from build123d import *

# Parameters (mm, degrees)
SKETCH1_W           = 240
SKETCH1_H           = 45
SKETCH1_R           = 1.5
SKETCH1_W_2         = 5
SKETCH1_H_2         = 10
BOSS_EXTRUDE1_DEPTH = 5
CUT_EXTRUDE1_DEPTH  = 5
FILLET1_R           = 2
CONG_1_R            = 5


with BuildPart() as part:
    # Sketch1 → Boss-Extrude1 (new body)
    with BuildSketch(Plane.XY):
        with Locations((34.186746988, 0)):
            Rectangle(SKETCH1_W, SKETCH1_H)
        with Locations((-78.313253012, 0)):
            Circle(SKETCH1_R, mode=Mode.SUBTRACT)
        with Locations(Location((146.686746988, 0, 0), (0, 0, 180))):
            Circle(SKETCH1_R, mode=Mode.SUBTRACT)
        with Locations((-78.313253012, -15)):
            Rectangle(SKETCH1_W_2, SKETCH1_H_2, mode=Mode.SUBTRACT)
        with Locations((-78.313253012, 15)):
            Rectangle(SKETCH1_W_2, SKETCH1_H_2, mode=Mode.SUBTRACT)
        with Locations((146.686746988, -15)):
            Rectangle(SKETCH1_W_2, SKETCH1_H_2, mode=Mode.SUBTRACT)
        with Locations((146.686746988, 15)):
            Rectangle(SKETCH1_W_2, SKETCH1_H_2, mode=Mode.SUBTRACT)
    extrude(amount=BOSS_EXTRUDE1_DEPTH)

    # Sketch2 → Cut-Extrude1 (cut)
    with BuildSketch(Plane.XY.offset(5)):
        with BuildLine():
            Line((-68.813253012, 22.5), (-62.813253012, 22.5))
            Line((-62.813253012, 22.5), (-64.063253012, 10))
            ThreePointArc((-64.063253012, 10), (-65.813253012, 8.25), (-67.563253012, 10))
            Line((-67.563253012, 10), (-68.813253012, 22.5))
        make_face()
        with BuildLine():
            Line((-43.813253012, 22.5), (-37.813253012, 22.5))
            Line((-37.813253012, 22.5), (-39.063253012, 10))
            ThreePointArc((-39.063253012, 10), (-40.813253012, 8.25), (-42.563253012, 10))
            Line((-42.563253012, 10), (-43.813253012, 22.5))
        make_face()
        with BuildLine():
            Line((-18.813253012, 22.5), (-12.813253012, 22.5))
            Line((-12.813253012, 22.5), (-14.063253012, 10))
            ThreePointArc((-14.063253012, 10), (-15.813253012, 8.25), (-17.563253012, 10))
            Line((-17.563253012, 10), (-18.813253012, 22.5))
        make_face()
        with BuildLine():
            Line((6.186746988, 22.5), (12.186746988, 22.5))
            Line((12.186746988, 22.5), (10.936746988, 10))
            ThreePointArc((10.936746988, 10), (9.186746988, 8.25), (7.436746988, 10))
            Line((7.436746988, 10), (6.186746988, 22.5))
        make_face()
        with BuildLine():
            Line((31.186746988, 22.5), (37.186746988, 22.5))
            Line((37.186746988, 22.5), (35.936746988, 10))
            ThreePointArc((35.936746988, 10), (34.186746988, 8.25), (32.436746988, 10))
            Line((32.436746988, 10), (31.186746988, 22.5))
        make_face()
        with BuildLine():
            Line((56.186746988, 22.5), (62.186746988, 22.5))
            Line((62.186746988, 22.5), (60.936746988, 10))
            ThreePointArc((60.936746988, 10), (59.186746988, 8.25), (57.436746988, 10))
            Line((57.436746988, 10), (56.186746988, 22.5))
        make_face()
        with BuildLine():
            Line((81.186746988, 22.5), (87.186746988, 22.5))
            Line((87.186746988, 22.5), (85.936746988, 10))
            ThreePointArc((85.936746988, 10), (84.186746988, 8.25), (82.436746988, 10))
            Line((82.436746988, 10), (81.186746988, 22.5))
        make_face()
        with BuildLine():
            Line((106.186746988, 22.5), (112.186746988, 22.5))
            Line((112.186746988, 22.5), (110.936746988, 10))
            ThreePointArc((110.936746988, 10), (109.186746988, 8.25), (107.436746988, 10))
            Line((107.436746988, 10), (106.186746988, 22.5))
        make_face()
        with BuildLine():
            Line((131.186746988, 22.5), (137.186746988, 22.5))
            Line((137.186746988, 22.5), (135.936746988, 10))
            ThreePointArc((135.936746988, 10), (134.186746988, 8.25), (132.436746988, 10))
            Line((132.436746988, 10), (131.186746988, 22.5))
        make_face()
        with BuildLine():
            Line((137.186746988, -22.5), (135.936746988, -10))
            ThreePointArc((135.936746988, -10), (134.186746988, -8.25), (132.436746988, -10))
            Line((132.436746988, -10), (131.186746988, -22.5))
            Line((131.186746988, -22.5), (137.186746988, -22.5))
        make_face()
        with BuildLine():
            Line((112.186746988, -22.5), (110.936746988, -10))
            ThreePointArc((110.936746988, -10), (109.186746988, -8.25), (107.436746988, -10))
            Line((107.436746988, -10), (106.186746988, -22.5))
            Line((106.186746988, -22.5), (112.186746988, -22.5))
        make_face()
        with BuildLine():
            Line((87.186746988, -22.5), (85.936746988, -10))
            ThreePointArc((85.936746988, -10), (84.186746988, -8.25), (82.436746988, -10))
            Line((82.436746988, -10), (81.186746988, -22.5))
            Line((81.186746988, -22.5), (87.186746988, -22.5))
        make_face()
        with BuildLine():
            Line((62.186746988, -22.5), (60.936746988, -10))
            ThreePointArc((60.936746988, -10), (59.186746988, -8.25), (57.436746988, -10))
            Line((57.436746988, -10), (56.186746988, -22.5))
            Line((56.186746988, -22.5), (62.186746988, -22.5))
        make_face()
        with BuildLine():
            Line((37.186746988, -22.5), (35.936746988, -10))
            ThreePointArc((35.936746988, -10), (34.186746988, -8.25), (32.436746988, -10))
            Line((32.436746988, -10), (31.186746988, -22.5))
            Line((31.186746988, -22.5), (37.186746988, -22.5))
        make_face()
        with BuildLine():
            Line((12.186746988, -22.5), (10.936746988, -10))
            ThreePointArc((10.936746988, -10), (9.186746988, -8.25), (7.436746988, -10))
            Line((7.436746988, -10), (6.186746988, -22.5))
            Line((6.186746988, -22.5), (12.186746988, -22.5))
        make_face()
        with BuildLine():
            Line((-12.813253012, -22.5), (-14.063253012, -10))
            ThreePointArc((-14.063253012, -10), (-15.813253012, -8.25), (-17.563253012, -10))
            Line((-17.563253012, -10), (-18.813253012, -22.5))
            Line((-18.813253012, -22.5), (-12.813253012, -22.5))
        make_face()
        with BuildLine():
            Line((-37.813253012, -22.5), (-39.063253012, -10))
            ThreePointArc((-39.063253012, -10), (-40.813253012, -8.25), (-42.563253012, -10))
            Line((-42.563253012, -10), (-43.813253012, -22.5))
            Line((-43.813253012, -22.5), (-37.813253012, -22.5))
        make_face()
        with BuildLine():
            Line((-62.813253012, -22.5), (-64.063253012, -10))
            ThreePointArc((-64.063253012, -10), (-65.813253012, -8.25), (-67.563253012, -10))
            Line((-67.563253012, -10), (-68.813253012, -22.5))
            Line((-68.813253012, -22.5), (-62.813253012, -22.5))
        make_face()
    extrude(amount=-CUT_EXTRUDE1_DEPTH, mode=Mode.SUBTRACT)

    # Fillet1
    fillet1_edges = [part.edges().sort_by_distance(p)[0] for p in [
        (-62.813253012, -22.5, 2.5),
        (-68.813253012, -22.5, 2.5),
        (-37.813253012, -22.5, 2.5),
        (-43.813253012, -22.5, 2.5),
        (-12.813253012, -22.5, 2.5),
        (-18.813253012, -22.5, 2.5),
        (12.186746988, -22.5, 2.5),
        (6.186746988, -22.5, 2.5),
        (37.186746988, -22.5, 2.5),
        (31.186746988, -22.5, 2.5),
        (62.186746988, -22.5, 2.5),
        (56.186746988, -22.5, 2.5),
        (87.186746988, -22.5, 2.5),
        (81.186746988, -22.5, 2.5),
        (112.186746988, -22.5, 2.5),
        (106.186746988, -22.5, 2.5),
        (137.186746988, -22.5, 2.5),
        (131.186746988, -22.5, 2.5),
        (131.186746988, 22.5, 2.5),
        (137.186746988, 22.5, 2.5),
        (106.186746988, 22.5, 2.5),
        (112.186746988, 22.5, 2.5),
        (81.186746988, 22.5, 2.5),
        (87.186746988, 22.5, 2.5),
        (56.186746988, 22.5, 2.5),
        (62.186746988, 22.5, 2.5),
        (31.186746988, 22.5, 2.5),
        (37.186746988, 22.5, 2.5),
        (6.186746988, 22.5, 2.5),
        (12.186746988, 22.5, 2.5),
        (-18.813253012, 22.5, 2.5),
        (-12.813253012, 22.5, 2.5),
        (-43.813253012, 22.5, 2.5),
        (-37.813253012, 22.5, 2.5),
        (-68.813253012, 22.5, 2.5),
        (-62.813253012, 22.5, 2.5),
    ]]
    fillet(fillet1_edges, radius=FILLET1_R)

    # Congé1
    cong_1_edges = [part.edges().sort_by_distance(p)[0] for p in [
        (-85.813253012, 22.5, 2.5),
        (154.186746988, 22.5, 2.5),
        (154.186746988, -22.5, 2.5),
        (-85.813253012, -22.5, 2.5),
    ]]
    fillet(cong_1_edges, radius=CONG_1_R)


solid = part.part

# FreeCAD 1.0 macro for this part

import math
import FreeCAD as App
import Part
import Sketcher


def edges_at(feature, points):
    """Names of the edges that pass closest to the given points."""
    edges = feature.Shape.Edges
    near = lambda p: min(range(len(edges)), key=lambda i: edges[i].distToShape(Part.Vertex(*p))[0])
    return sorted({f"Edge{near(p) + 1}" for p in points})


def add_polygon(sketch, points):
    """Adds a closed chain of lines whose ends are joined by coincident constraints."""
    first, n = sketch.GeometryCount, len(points)
    for a, b in zip(points, points[1:] + points[:1]):
        sketch.addGeometry(Part.LineSegment(App.Vector(*a, 0), App.Vector(*b, 0)), False)
    for i in range(n):
        sketch.addConstraint(Sketcher.Constraint("Coincident", first + i, 2, first + (i + 1) % n, 1))

doc = App.newDocument("Part")
body = doc.addObject("PartDesign::Body", "Body")

# Sketch on XY plane
sketch1 = body.newObject("Sketcher::SketchObject", "Sketch")
sketch1.AttachmentSupport = (doc.getObject("XY_Plane"), [""])
sketch1.MapMode = "FlatFace"
add_polygon(sketch1, [(-85.8, 22.5), (-85.8, -22.5), (154.2, -22.5), (154.2, 22.5)])  # lines 0-3
add_polygon(sketch1, [(-75.8, -20), (-80.8, -20), (-80.8, -10), (-75.8, -10)])  # lines 4-7
add_polygon(sketch1, [(149.2, -20), (144.2, -20), (144.2, -10), (149.2, -10)])  # lines 8-11
sketch1.addGeometry(Part.Circle(App.Vector(-78.3, 0, 0), App.Vector(0, 0, 1), 1.5), False)  # 12
add_polygon(sketch1, [(-75.8, 10), (-80.8, 10), (-80.8, 20), (-75.8, 20)])  # lines 13-16
sketch1.addGeometry(Part.Circle(App.Vector(146.7, 0, 0), App.Vector(0, 0, 1), 1.5), False)  # 17
add_polygon(sketch1, [(149.2, 10), (144.2, 10), (144.2, 20), (149.2, 20)])  # lines 18-21
sketch1.addConstraint(Sketcher.Constraint("Vertical", 0))
sketch1.addConstraint(Sketcher.Constraint("Horizontal", 1))
sketch1.addConstraint(Sketcher.Constraint("Vertical", 2))
sketch1.addConstraint(Sketcher.Constraint("Horizontal", 3))
sketch1.addConstraint(Sketcher.Constraint("Horizontal", 4))
sketch1.addConstraint(Sketcher.Constraint("Vertical", 5))
sketch1.addConstraint(Sketcher.Constraint("Horizontal", 6))
sketch1.addConstraint(Sketcher.Constraint("Vertical", 7))
sketch1.addConstraint(Sketcher.Constraint("Horizontal", 8))
sketch1.addConstraint(Sketcher.Constraint("Vertical", 9))
sketch1.addConstraint(Sketcher.Constraint("Horizontal", 10))
sketch1.addConstraint(Sketcher.Constraint("Vertical", 11))
sketch1.addConstraint(Sketcher.Constraint("Horizontal", 13))
sketch1.addConstraint(Sketcher.Constraint("Vertical", 14))
sketch1.addConstraint(Sketcher.Constraint("Horizontal", 15))
sketch1.addConstraint(Sketcher.Constraint("Vertical", 16))
sketch1.addConstraint(Sketcher.Constraint("Horizontal", 18))
sketch1.addConstraint(Sketcher.Constraint("Vertical", 19))
sketch1.addConstraint(Sketcher.Constraint("Horizontal", 20))
sketch1.addConstraint(Sketcher.Constraint("Vertical", 21))
sketch1.addConstraint(Sketcher.Constraint("Equal", 12, 17))
sketch1.addConstraint(Sketcher.Constraint("Symmetric", 5, 2, 13, 2, -1))
sketch1.addConstraint(Sketcher.Constraint("Symmetric", 7, 2, 15, 2, -1))
sketch1.addConstraint(Sketcher.Constraint("Symmetric", 9, 2, 18, 2, -1))
sketch1.addConstraint(Sketcher.Constraint("Symmetric", 11, 2, 20, 2, -1))
sketch1.addConstraint(Sketcher.Constraint("PointOnObject", 12, 3, -1))
sketch1.addConstraint(Sketcher.Constraint("PointOnObject", 17, 3, -1))
sketch1.addConstraint(Sketcher.Constraint("Horizontal", 7, 2, 8, 2))
sketch1.addConstraint(Sketcher.Constraint("Horizontal", 6, 2, 9, 2))
sketch1.addConstraint(Sketcher.Constraint("Equal", 6, 8))
sketch1.addConstraint(Sketcher.Constraint("Diameter", 12, 3.0))
sketch1.addConstraint(Sketcher.Constraint("DistanceX", 1, 1, 1, 2, 240.0))
sketch1.addConstraint(Sketcher.Constraint("DistanceX", 4, 2, 4, 1, 5.0))
sketch1.addConstraint(Sketcher.Constraint("DistanceY", 0, 2, 0, 1, 45.0))
sketch1.addConstraint(Sketcher.Constraint("DistanceY", 5, 1, 5, 2, 10.0))
sketch1.addConstraint(Sketcher.Constraint("DistanceY", 4, 2, -1, 1, 20.0))
sketch1.addConstraint(Sketcher.Constraint("DistanceX", 12, 3, 17, 3, 225.0))
sketch1.addConstraint(Sketcher.Constraint("DistanceX", 0, 2, 4, 2, 5.0))
sketch1.addConstraint(Sketcher.Constraint("DistanceX", 8, 2, 1, 2, 10.0))
sketch1.addConstraint(Sketcher.Constraint("DistanceY", 0, 2, -1, 1, 22.5))
sketch1.addConstraint(Sketcher.Constraint("DistanceX", 0, 2, 12, 3, 7.5))
sketch1.addConstraint(Sketcher.Constraint("DistanceX", 12, 3, -1, 1, 78.313253))
pad1 = body.newObject("PartDesign::Pad", "Pad")
pad1.Profile = sketch1
pad1.Length = 5

# Sketch on XY plane
sketch2 = body.newObject("Sketcher::SketchObject", "Sketch001")
sketch2.AttachmentSupport = (doc.getObject("XY_Plane"), [""])
sketch2.MapMode = "FlatFace"
sketch2.AttachmentOffset = App.Placement(App.Vector(0, 0, 5), App.Rotation())
sketch2.addGeometry(Part.LineSegment(App.Vector(-62.8, 22.5, 0), App.Vector(-68.8, 22.5, 0)), False)
sketch2.addGeometry(Part.LineSegment(App.Vector(-68.8, 22.5, 0), App.Vector(-67.6, 10, 0)), False)
sketch2.addGeometry(Part.ArcOfCircle(Part.Circle(App.Vector(-65.8, 10, 0), App.Vector(0, 0, 1), 1.8), math.radians(180), math.radians(360)), False)
sketch2.addGeometry(Part.LineSegment(App.Vector(-64.1, 10, 0), App.Vector(-62.8, 22.5, 0)), False)
sketch2.addGeometry(Part.LineSegment(App.Vector(-37.8, 22.5, 0), App.Vector(-43.8, 22.5, 0)), False)
sketch2.addGeometry(Part.LineSegment(App.Vector(-43.8, 22.5, 0), App.Vector(-42.6, 10, 0)), False)
sketch2.addGeometry(Part.ArcOfCircle(Part.Circle(App.Vector(-40.8, 10, 0), App.Vector(0, 0, 1), 1.8), math.radians(180), math.radians(360)), False)
sketch2.addGeometry(Part.LineSegment(App.Vector(-39.1, 10, 0), App.Vector(-37.8, 22.5, 0)), False)
sketch2.addGeometry(Part.LineSegment(App.Vector(-12.8, 22.5, 0), App.Vector(-18.8, 22.5, 0)), False)
sketch2.addGeometry(Part.LineSegment(App.Vector(-18.8, 22.5, 0), App.Vector(-17.6, 10, 0)), False)
sketch2.addGeometry(Part.ArcOfCircle(Part.Circle(App.Vector(-15.8, 10, 0), App.Vector(0, 0, 1), 1.8), math.radians(180), math.radians(360)), False)
sketch2.addGeometry(Part.LineSegment(App.Vector(-14.1, 10, 0), App.Vector(-12.8, 22.5, 0)), False)
sketch2.addGeometry(Part.LineSegment(App.Vector(12.2, 22.5, 0), App.Vector(6.2, 22.5, 0)), False)
sketch2.addGeometry(Part.LineSegment(App.Vector(6.2, 22.5, 0), App.Vector(7.4, 10, 0)), False)
sketch2.addGeometry(Part.ArcOfCircle(Part.Circle(App.Vector(9.2, 10, 0), App.Vector(0, 0, 1), 1.8), math.radians(180), math.radians(360)), False)
sketch2.addGeometry(Part.LineSegment(App.Vector(10.9, 10, 0), App.Vector(12.2, 22.5, 0)), False)
sketch2.addGeometry(Part.LineSegment(App.Vector(37.2, 22.5, 0), App.Vector(31.2, 22.5, 0)), False)
sketch2.addGeometry(Part.LineSegment(App.Vector(31.2, 22.5, 0), App.Vector(32.4, 10, 0)), False)
sketch2.addGeometry(Part.ArcOfCircle(Part.Circle(App.Vector(34.2, 10, 0), App.Vector(0, 0, 1), 1.8), math.radians(180), math.radians(360)), False)
sketch2.addGeometry(Part.LineSegment(App.Vector(35.9, 10, 0), App.Vector(37.2, 22.5, 0)), False)
sketch2.addGeometry(Part.LineSegment(App.Vector(62.2, 22.5, 0), App.Vector(56.2, 22.5, 0)), False)
sketch2.addGeometry(Part.LineSegment(App.Vector(56.2, 22.5, 0), App.Vector(57.4, 10, 0)), False)
sketch2.addGeometry(Part.ArcOfCircle(Part.Circle(App.Vector(59.2, 10, 0), App.Vector(0, 0, 1), 1.8), math.radians(180), math.radians(360)), False)
sketch2.addGeometry(Part.LineSegment(App.Vector(60.9, 10, 0), App.Vector(62.2, 22.5, 0)), False)
sketch2.addGeometry(Part.LineSegment(App.Vector(87.2, 22.5, 0), App.Vector(81.2, 22.5, 0)), False)
sketch2.addGeometry(Part.LineSegment(App.Vector(81.2, 22.5, 0), App.Vector(82.4, 10, 0)), False)
sketch2.addGeometry(Part.ArcOfCircle(Part.Circle(App.Vector(84.2, 10, 0), App.Vector(0, 0, 1), 1.8), math.radians(180), math.radians(360)), False)
sketch2.addGeometry(Part.LineSegment(App.Vector(85.9, 10, 0), App.Vector(87.2, 22.5, 0)), False)
sketch2.addGeometry(Part.LineSegment(App.Vector(112.2, 22.5, 0), App.Vector(106.2, 22.5, 0)), False)
sketch2.addGeometry(Part.LineSegment(App.Vector(106.2, 22.5, 0), App.Vector(107.4, 10, 0)), False)
sketch2.addGeometry(Part.ArcOfCircle(Part.Circle(App.Vector(109.2, 10, 0), App.Vector(0, 0, 1), 1.8), math.radians(180), math.radians(360)), False)
sketch2.addGeometry(Part.LineSegment(App.Vector(110.9, 10, 0), App.Vector(112.2, 22.5, 0)), False)
sketch2.addGeometry(Part.LineSegment(App.Vector(137.2, 22.5, 0), App.Vector(131.2, 22.5, 0)), False)
sketch2.addGeometry(Part.LineSegment(App.Vector(131.2, 22.5, 0), App.Vector(132.4, 10, 0)), False)
sketch2.addGeometry(Part.ArcOfCircle(Part.Circle(App.Vector(134.2, 10, 0), App.Vector(0, 0, 1), 1.8), math.radians(180), math.radians(360)), False)
sketch2.addGeometry(Part.LineSegment(App.Vector(135.9, 10, 0), App.Vector(137.2, 22.5, 0)), False)
sketch2.addGeometry(Part.LineSegment(App.Vector(137.2, -22.5, 0), App.Vector(135.9, -10, 0)), False)
sketch2.addGeometry(Part.ArcOfCircle(Part.Circle(App.Vector(134.2, -10, 0), App.Vector(0, 0, 1), 1.8), math.radians(0), math.radians(180)), False)
sketch2.addGeometry(Part.LineSegment(App.Vector(132.4, -10, 0), App.Vector(131.2, -22.5, 0)), False)
sketch2.addGeometry(Part.LineSegment(App.Vector(131.2, -22.5, 0), App.Vector(137.2, -22.5, 0)), False)
sketch2.addGeometry(Part.LineSegment(App.Vector(112.2, -22.5, 0), App.Vector(110.9, -10, 0)), False)
sketch2.addGeometry(Part.ArcOfCircle(Part.Circle(App.Vector(109.2, -10, 0), App.Vector(0, 0, 1), 1.8), math.radians(0), math.radians(180)), False)
sketch2.addGeometry(Part.LineSegment(App.Vector(107.4, -10, 0), App.Vector(106.2, -22.5, 0)), False)
sketch2.addGeometry(Part.LineSegment(App.Vector(106.2, -22.5, 0), App.Vector(112.2, -22.5, 0)), False)
sketch2.addGeometry(Part.LineSegment(App.Vector(87.2, -22.5, 0), App.Vector(85.9, -10, 0)), False)
sketch2.addGeometry(Part.ArcOfCircle(Part.Circle(App.Vector(84.2, -10, 0), App.Vector(0, 0, 1), 1.8), math.radians(0), math.radians(180)), False)
sketch2.addGeometry(Part.LineSegment(App.Vector(82.4, -10, 0), App.Vector(81.2, -22.5, 0)), False)
sketch2.addGeometry(Part.LineSegment(App.Vector(81.2, -22.5, 0), App.Vector(87.2, -22.5, 0)), False)
sketch2.addGeometry(Part.LineSegment(App.Vector(62.2, -22.5, 0), App.Vector(60.9, -10, 0)), False)
sketch2.addGeometry(Part.ArcOfCircle(Part.Circle(App.Vector(59.2, -10, 0), App.Vector(0, 0, 1), 1.8), math.radians(0), math.radians(180)), False)
sketch2.addGeometry(Part.LineSegment(App.Vector(57.4, -10, 0), App.Vector(56.2, -22.5, 0)), False)
sketch2.addGeometry(Part.LineSegment(App.Vector(56.2, -22.5, 0), App.Vector(62.2, -22.5, 0)), False)
sketch2.addGeometry(Part.LineSegment(App.Vector(37.2, -22.5, 0), App.Vector(35.9, -10, 0)), False)
sketch2.addGeometry(Part.ArcOfCircle(Part.Circle(App.Vector(34.2, -10, 0), App.Vector(0, 0, 1), 1.8), math.radians(0), math.radians(180)), False)
sketch2.addGeometry(Part.LineSegment(App.Vector(32.4, -10, 0), App.Vector(31.2, -22.5, 0)), False)
sketch2.addGeometry(Part.LineSegment(App.Vector(31.2, -22.5, 0), App.Vector(37.2, -22.5, 0)), False)
sketch2.addGeometry(Part.LineSegment(App.Vector(12.2, -22.5, 0), App.Vector(10.9, -10, 0)), False)
sketch2.addGeometry(Part.ArcOfCircle(Part.Circle(App.Vector(9.2, -10, 0), App.Vector(0, 0, 1), 1.8), math.radians(0), math.radians(180)), False)
sketch2.addGeometry(Part.LineSegment(App.Vector(7.4, -10, 0), App.Vector(6.2, -22.5, 0)), False)
sketch2.addGeometry(Part.LineSegment(App.Vector(6.2, -22.5, 0), App.Vector(12.2, -22.5, 0)), False)
sketch2.addGeometry(Part.LineSegment(App.Vector(-12.8, -22.5, 0), App.Vector(-14.1, -10, 0)), False)
sketch2.addGeometry(Part.ArcOfCircle(Part.Circle(App.Vector(-15.8, -10, 0), App.Vector(0, 0, 1), 1.8), math.radians(0), math.radians(180)), False)
sketch2.addGeometry(Part.LineSegment(App.Vector(-17.6, -10, 0), App.Vector(-18.8, -22.5, 0)), False)
sketch2.addGeometry(Part.LineSegment(App.Vector(-18.8, -22.5, 0), App.Vector(-12.8, -22.5, 0)), False)
sketch2.addGeometry(Part.LineSegment(App.Vector(-37.8, -22.5, 0), App.Vector(-39.1, -10, 0)), False)
sketch2.addGeometry(Part.ArcOfCircle(Part.Circle(App.Vector(-40.8, -10, 0), App.Vector(0, 0, 1), 1.8), math.radians(0), math.radians(180)), False)
sketch2.addGeometry(Part.LineSegment(App.Vector(-42.6, -10, 0), App.Vector(-43.8, -22.5, 0)), False)
sketch2.addGeometry(Part.LineSegment(App.Vector(-43.8, -22.5, 0), App.Vector(-37.8, -22.5, 0)), False)
sketch2.addGeometry(Part.LineSegment(App.Vector(-62.8, -22.5, 0), App.Vector(-64.1, -10, 0)), False)
sketch2.addGeometry(Part.ArcOfCircle(Part.Circle(App.Vector(-65.8, -10, 0), App.Vector(0, 0, 1), 1.8), math.radians(0), math.radians(180)), False)
sketch2.addGeometry(Part.LineSegment(App.Vector(-67.6, -10, 0), App.Vector(-68.8, -22.5, 0)), False)
sketch2.addGeometry(Part.LineSegment(App.Vector(-68.8, -22.5, 0), App.Vector(-62.8, -22.5, 0)), False)
sketch2.addConstraint(Sketcher.Constraint("Coincident", 0, 2, 1, 1))
sketch2.addConstraint(Sketcher.Constraint("Coincident", 1, 2, 2, 1))
sketch2.addConstraint(Sketcher.Constraint("Coincident", 2, 2, 3, 1))
sketch2.addConstraint(Sketcher.Constraint("Coincident", 3, 2, 0, 1))
sketch2.addConstraint(Sketcher.Constraint("Coincident", 4, 2, 5, 1))
sketch2.addConstraint(Sketcher.Constraint("Coincident", 5, 2, 6, 1))
sketch2.addConstraint(Sketcher.Constraint("Coincident", 6, 2, 7, 1))
sketch2.addConstraint(Sketcher.Constraint("Coincident", 7, 2, 4, 1))
sketch2.addConstraint(Sketcher.Constraint("Coincident", 8, 2, 9, 1))
sketch2.addConstraint(Sketcher.Constraint("Coincident", 9, 2, 10, 1))
sketch2.addConstraint(Sketcher.Constraint("Coincident", 10, 2, 11, 1))
sketch2.addConstraint(Sketcher.Constraint("Coincident", 11, 2, 8, 1))
sketch2.addConstraint(Sketcher.Constraint("Coincident", 12, 2, 13, 1))
sketch2.addConstraint(Sketcher.Constraint("Coincident", 13, 2, 14, 1))
sketch2.addConstraint(Sketcher.Constraint("Coincident", 14, 2, 15, 1))
sketch2.addConstraint(Sketcher.Constraint("Coincident", 15, 2, 12, 1))
sketch2.addConstraint(Sketcher.Constraint("Coincident", 16, 2, 17, 1))
sketch2.addConstraint(Sketcher.Constraint("Coincident", 17, 2, 18, 1))
sketch2.addConstraint(Sketcher.Constraint("Coincident", 18, 2, 19, 1))
sketch2.addConstraint(Sketcher.Constraint("Coincident", 19, 2, 16, 1))
sketch2.addConstraint(Sketcher.Constraint("Coincident", 20, 2, 21, 1))
sketch2.addConstraint(Sketcher.Constraint("Coincident", 21, 2, 22, 1))
sketch2.addConstraint(Sketcher.Constraint("Coincident", 22, 2, 23, 1))
sketch2.addConstraint(Sketcher.Constraint("Coincident", 23, 2, 20, 1))
sketch2.addConstraint(Sketcher.Constraint("Coincident", 24, 2, 25, 1))
sketch2.addConstraint(Sketcher.Constraint("Coincident", 25, 2, 26, 1))
sketch2.addConstraint(Sketcher.Constraint("Coincident", 26, 2, 27, 1))
sketch2.addConstraint(Sketcher.Constraint("Coincident", 27, 2, 24, 1))
sketch2.addConstraint(Sketcher.Constraint("Coincident", 28, 2, 29, 1))
sketch2.addConstraint(Sketcher.Constraint("Coincident", 29, 2, 30, 1))
sketch2.addConstraint(Sketcher.Constraint("Coincident", 30, 2, 31, 1))
sketch2.addConstraint(Sketcher.Constraint("Coincident", 31, 2, 28, 1))
sketch2.addConstraint(Sketcher.Constraint("Coincident", 32, 2, 33, 1))
sketch2.addConstraint(Sketcher.Constraint("Coincident", 33, 2, 34, 1))
sketch2.addConstraint(Sketcher.Constraint("Coincident", 34, 2, 35, 1))
sketch2.addConstraint(Sketcher.Constraint("Coincident", 35, 2, 32, 1))
sketch2.addConstraint(Sketcher.Constraint("Coincident", 36, 2, 37, 1))
sketch2.addConstraint(Sketcher.Constraint("Coincident", 37, 2, 38, 1))
sketch2.addConstraint(Sketcher.Constraint("Coincident", 38, 2, 39, 1))
sketch2.addConstraint(Sketcher.Constraint("Coincident", 39, 2, 36, 1))
sketch2.addConstraint(Sketcher.Constraint("Coincident", 40, 2, 41, 1))
sketch2.addConstraint(Sketcher.Constraint("Coincident", 41, 2, 42, 1))
sketch2.addConstraint(Sketcher.Constraint("Coincident", 42, 2, 43, 1))
sketch2.addConstraint(Sketcher.Constraint("Coincident", 43, 2, 40, 1))
sketch2.addConstraint(Sketcher.Constraint("Coincident", 44, 2, 45, 1))
sketch2.addConstraint(Sketcher.Constraint("Coincident", 45, 2, 46, 1))
sketch2.addConstraint(Sketcher.Constraint("Coincident", 46, 2, 47, 1))
sketch2.addConstraint(Sketcher.Constraint("Coincident", 47, 2, 44, 1))
sketch2.addConstraint(Sketcher.Constraint("Coincident", 48, 2, 49, 1))
sketch2.addConstraint(Sketcher.Constraint("Coincident", 49, 2, 50, 1))
sketch2.addConstraint(Sketcher.Constraint("Coincident", 50, 2, 51, 1))
sketch2.addConstraint(Sketcher.Constraint("Coincident", 51, 2, 48, 1))
sketch2.addConstraint(Sketcher.Constraint("Coincident", 52, 2, 53, 1))
sketch2.addConstraint(Sketcher.Constraint("Coincident", 53, 2, 54, 1))
sketch2.addConstraint(Sketcher.Constraint("Coincident", 54, 2, 55, 1))
sketch2.addConstraint(Sketcher.Constraint("Coincident", 55, 2, 52, 1))
sketch2.addConstraint(Sketcher.Constraint("Coincident", 56, 2, 57, 1))
sketch2.addConstraint(Sketcher.Constraint("Coincident", 57, 2, 58, 1))
sketch2.addConstraint(Sketcher.Constraint("Coincident", 58, 2, 59, 1))
sketch2.addConstraint(Sketcher.Constraint("Coincident", 59, 2, 56, 1))
sketch2.addConstraint(Sketcher.Constraint("Coincident", 60, 2, 61, 1))
sketch2.addConstraint(Sketcher.Constraint("Coincident", 61, 2, 62, 1))
sketch2.addConstraint(Sketcher.Constraint("Coincident", 62, 2, 63, 1))
sketch2.addConstraint(Sketcher.Constraint("Coincident", 63, 2, 60, 1))
sketch2.addConstraint(Sketcher.Constraint("Coincident", 64, 2, 65, 1))
sketch2.addConstraint(Sketcher.Constraint("Coincident", 65, 2, 66, 1))
sketch2.addConstraint(Sketcher.Constraint("Coincident", 66, 2, 67, 1))
sketch2.addConstraint(Sketcher.Constraint("Coincident", 67, 2, 64, 1))
sketch2.addConstraint(Sketcher.Constraint("Coincident", 68, 2, 69, 1))
sketch2.addConstraint(Sketcher.Constraint("Coincident", 69, 2, 70, 1))
sketch2.addConstraint(Sketcher.Constraint("Coincident", 70, 2, 71, 1))
sketch2.addConstraint(Sketcher.Constraint("Coincident", 71, 2, 68, 1))
sketch2.addConstraint(Sketcher.Constraint("Horizontal", 0))
sketch2.addConstraint(Sketcher.Constraint("Horizontal", 4))
sketch2.addConstraint(Sketcher.Constraint("Horizontal", 8))
sketch2.addConstraint(Sketcher.Constraint("Horizontal", 12))
sketch2.addConstraint(Sketcher.Constraint("Horizontal", 16))
sketch2.addConstraint(Sketcher.Constraint("Horizontal", 20))
sketch2.addConstraint(Sketcher.Constraint("Horizontal", 24))
sketch2.addConstraint(Sketcher.Constraint("Horizontal", 28))
sketch2.addConstraint(Sketcher.Constraint("Horizontal", 32))
sketch2.addConstraint(Sketcher.Constraint("Horizontal", 39))
sketch2.addConstraint(Sketcher.Constraint("Horizontal", 43))
sketch2.addConstraint(Sketcher.Constraint("Horizontal", 47))
sketch2.addConstraint(Sketcher.Constraint("Horizontal", 51))
sketch2.addConstraint(Sketcher.Constraint("Horizontal", 55))
sketch2.addConstraint(Sketcher.Constraint("Horizontal", 59))
sketch2.addConstraint(Sketcher.Constraint("Horizontal", 63))
sketch2.addConstraint(Sketcher.Constraint("Horizontal", 67))
sketch2.addConstraint(Sketcher.Constraint("Horizontal", 71))
sketch2.addConstraint(Sketcher.Constraint("Equal", 2, 6))
sketch2.addConstraint(Sketcher.Constraint("Equal", 6, 10))
sketch2.addConstraint(Sketcher.Constraint("Equal", 10, 14))
sketch2.addConstraint(Sketcher.Constraint("Equal", 14, 18))
sketch2.addConstraint(Sketcher.Constraint("Equal", 18, 22))
sketch2.addConstraint(Sketcher.Constraint("Equal", 22, 26))
sketch2.addConstraint(Sketcher.Constraint("Equal", 26, 30))
sketch2.addConstraint(Sketcher.Constraint("Equal", 30, 34))
sketch2.addConstraint(Sketcher.Constraint("Equal", 34, 37))
sketch2.addConstraint(Sketcher.Constraint("Equal", 37, 41))
sketch2.addConstraint(Sketcher.Constraint("Equal", 41, 45))
sketch2.addConstraint(Sketcher.Constraint("Equal", 45, 49))
sketch2.addConstraint(Sketcher.Constraint("Equal", 49, 53))
sketch2.addConstraint(Sketcher.Constraint("Equal", 53, 57))
sketch2.addConstraint(Sketcher.Constraint("Equal", 57, 61))
sketch2.addConstraint(Sketcher.Constraint("Equal", 61, 65))
sketch2.addConstraint(Sketcher.Constraint("Equal", 65, 69))
sketch2.addConstraint(Sketcher.Constraint("Symmetric", 34, 3, 37, 3, -1))
sketch2.addConstraint(Sketcher.Constraint("Symmetric", 30, 3, 41, 3, -1))
sketch2.addConstraint(Sketcher.Constraint("Symmetric", 26, 3, 45, 3, -1))
sketch2.addConstraint(Sketcher.Constraint("Symmetric", 22, 3, 49, 3, -1))
sketch2.addConstraint(Sketcher.Constraint("Symmetric", 18, 3, 53, 3, -1))
sketch2.addConstraint(Sketcher.Constraint("Symmetric", 14, 3, 57, 3, -1))
sketch2.addConstraint(Sketcher.Constraint("Symmetric", 10, 3, 61, 3, -1))
sketch2.addConstraint(Sketcher.Constraint("Symmetric", 6, 3, 65, 3, -1))
sketch2.addConstraint(Sketcher.Constraint("Symmetric", 2, 3, 69, 3, -1))
sketch2.addConstraint(Sketcher.Constraint("Symmetric", 32, 2, 38, 2, -1))
sketch2.addConstraint(Sketcher.Constraint("Symmetric", 28, 2, 42, 2, -1))
sketch2.addConstraint(Sketcher.Constraint("Symmetric", 24, 2, 46, 2, -1))
sketch2.addConstraint(Sketcher.Constraint("Symmetric", 20, 2, 50, 2, -1))
sketch2.addConstraint(Sketcher.Constraint("Symmetric", 16, 2, 54, 2, -1))
sketch2.addConstraint(Sketcher.Constraint("Symmetric", 12, 2, 58, 2, -1))
sketch2.addConstraint(Sketcher.Constraint("Symmetric", 8, 2, 62, 2, -1))
sketch2.addConstraint(Sketcher.Constraint("Symmetric", 4, 2, 66, 2, -1))
sketch2.addConstraint(Sketcher.Constraint("Symmetric", 0, 2, 70, 2, -1))
sketch2.addConstraint(Sketcher.Constraint("Parallel", 1, 5))
sketch2.addConstraint(Sketcher.Constraint("Parallel", 3, 7))
sketch2.addConstraint(Sketcher.Constraint("Parallel", 5, 9))
sketch2.addConstraint(Sketcher.Constraint("Parallel", 7, 11))
sketch2.addConstraint(Sketcher.Constraint("Parallel", 9, 13))
sketch2.addConstraint(Sketcher.Constraint("Parallel", 11, 15))
sketch2.addConstraint(Sketcher.Constraint("Parallel", 13, 17))
sketch2.addConstraint(Sketcher.Constraint("Parallel", 15, 19))
sketch2.addConstraint(Sketcher.Constraint("Parallel", 17, 21))
sketch2.addConstraint(Sketcher.Constraint("Parallel", 19, 23))
sketch2.addConstraint(Sketcher.Constraint("Parallel", 21, 25))
sketch2.addConstraint(Sketcher.Constraint("Parallel", 23, 27))
sketch2.addConstraint(Sketcher.Constraint("Parallel", 25, 29))
sketch2.addConstraint(Sketcher.Constraint("Parallel", 27, 31))
sketch2.addConstraint(Sketcher.Constraint("Parallel", 29, 33))
sketch2.addConstraint(Sketcher.Constraint("Parallel", 31, 35))
sketch2.addConstraint(Sketcher.Constraint("Parallel", 33, 36))
sketch2.addConstraint(Sketcher.Constraint("Parallel", 35, 38))
sketch2.addConstraint(Sketcher.Constraint("Parallel", 36, 40))
sketch2.addConstraint(Sketcher.Constraint("Parallel", 38, 42))
sketch2.addConstraint(Sketcher.Constraint("Parallel", 40, 44))
sketch2.addConstraint(Sketcher.Constraint("Parallel", 42, 46))
sketch2.addConstraint(Sketcher.Constraint("Parallel", 44, 48))
sketch2.addConstraint(Sketcher.Constraint("Parallel", 46, 50))
sketch2.addConstraint(Sketcher.Constraint("Parallel", 48, 52))
sketch2.addConstraint(Sketcher.Constraint("Parallel", 50, 54))
sketch2.addConstraint(Sketcher.Constraint("Parallel", 52, 56))
sketch2.addConstraint(Sketcher.Constraint("Parallel", 54, 58))
sketch2.addConstraint(Sketcher.Constraint("Parallel", 56, 60))
sketch2.addConstraint(Sketcher.Constraint("Parallel", 58, 62))
sketch2.addConstraint(Sketcher.Constraint("Parallel", 60, 64))
sketch2.addConstraint(Sketcher.Constraint("Parallel", 62, 66))
sketch2.addConstraint(Sketcher.Constraint("Parallel", 64, 68))
sketch2.addConstraint(Sketcher.Constraint("Parallel", 66, 70))
sketch2.addConstraint(Sketcher.Constraint("Horizontal", 2, 3, 6, 3))
sketch2.addConstraint(Sketcher.Constraint("Horizontal", 6, 3, 10, 3))
sketch2.addConstraint(Sketcher.Constraint("Horizontal", 10, 3, 14, 3))
sketch2.addConstraint(Sketcher.Constraint("Horizontal", 14, 3, 18, 3))
sketch2.addConstraint(Sketcher.Constraint("Horizontal", 18, 3, 22, 3))
sketch2.addConstraint(Sketcher.Constraint("Horizontal", 22, 3, 26, 3))
sketch2.addConstraint(Sketcher.Constraint("Horizontal", 26, 3, 30, 3))
sketch2.addConstraint(Sketcher.Constraint("Horizontal", 30, 3, 34, 3))
sketch2.addConstraint(Sketcher.Constraint("Horizontal", 34, 3, 1, 2))
sketch2.addConstraint(Sketcher.Constraint("Horizontal", 1, 2, 2, 2))
sketch2.addConstraint(Sketcher.Constraint("Horizontal", 3, 2, 4, 2))
sketch2.addConstraint(Sketcher.Constraint("Horizontal", 2, 2, 5, 2))
sketch2.addConstraint(Sketcher.Constraint("Horizontal", 5, 2, 6, 2))
sketch2.addConstraint(Sketcher.Constraint("Horizontal", 7, 2, 8, 2))
sketch2.addConstraint(Sketcher.Constraint("Horizontal", 6, 2, 9, 2))
sketch2.addConstraint(Sketcher.Constraint("Horizontal", 9, 2, 10, 2))
sketch2.addConstraint(Sketcher.Constraint("Horizontal", 11, 2, 12, 2))
sketch2.addConstraint(Sketcher.Constraint("Horizontal", 10, 2, 13, 2))
sketch2.addConstraint(Sketcher.Constraint("Horizontal", 13, 2, 14, 2))
sketch2.addConstraint(Sketcher.Constraint("Horizontal", 15, 2, 16, 2))
sketch2.addConstraint(Sketcher.Constraint("Horizontal", 14, 2, 17, 2))
sketch2.addConstraint(Sketcher.Constraint("Horizontal", 17, 2, 18, 2))
sketch2.addConstraint(Sketcher.Constraint("Horizontal", 19, 2, 20, 2))
sketch2.addConstraint(Sketcher.Constraint("Horizontal", 18, 2, 21, 2))
sketch2.addConstraint(Sketcher.Constraint("Horizontal", 21, 2, 22, 2))
sketch2.addConstraint(Sketcher.Constraint("Horizontal", 23, 2, 24, 2))
sketch2.addConstraint(Sketcher.Constraint("Horizontal", 22, 2, 25, 2))
sketch2.addConstraint(Sketcher.Constraint("Horizontal", 25, 2, 26, 2))
sketch2.addConstraint(Sketcher.Constraint("Horizontal", 27, 2, 28, 2))
sketch2.addConstraint(Sketcher.Constraint("Horizontal", 26, 2, 29, 2))
sketch2.addConstraint(Sketcher.Constraint("Horizontal", 29, 2, 30, 2))
sketch2.addConstraint(Sketcher.Constraint("Horizontal", 31, 2, 32, 2))
sketch2.addConstraint(Sketcher.Constraint("Horizontal", 30, 2, 33, 2))
sketch2.addConstraint(Sketcher.Constraint("Horizontal", 33, 2, 34, 2))
sketch2.addConstraint(Sketcher.Constraint("Horizontal", 69, 3, 36, 2))
sketch2.addConstraint(Sketcher.Constraint("Horizontal", 36, 2, 37, 2))
sketch2.addConstraint(Sketcher.Constraint("Horizontal", 37, 2, 40, 2))
sketch2.addConstraint(Sketcher.Constraint("Horizontal", 41, 2, 44, 2))
sketch2.addConstraint(Sketcher.Constraint("Horizontal", 45, 2, 48, 2))
sketch2.addConstraint(Sketcher.Constraint("Horizontal", 49, 2, 52, 2))
sketch2.addConstraint(Sketcher.Constraint("Horizontal", 53, 2, 56, 2))
sketch2.addConstraint(Sketcher.Constraint("Horizontal", 57, 2, 60, 2))
sketch2.addConstraint(Sketcher.Constraint("Horizontal", 61, 2, 64, 2))
sketch2.addConstraint(Sketcher.Constraint("Horizontal", 65, 2, 68, 2))
sketch2.addConstraint(Sketcher.Constraint("DistanceX", 0, 2, 0, 1, 6.0))
sketch2.addConstraint(Sketcher.Constraint("Radius", 2, 1.75))
sketch2.addConstraint(Sketcher.Constraint("DistanceY", -1, 1, 2, 3, 10.0))
sketch2.addConstraint(Sketcher.Constraint("DistanceY", -1, 1, 0, 2, 22.5))
sketch2.addConstraint(Sketcher.Constraint("DistanceX", 2, 3, -1, 1, 65.813253))
sketch2.addConstraint(Sketcher.Constraint("DistanceX", 6, 3, -1, 1, 40.813253))
sketch2.addConstraint(Sketcher.Constraint("DistanceX", 10, 3, -1, 1, 15.813253))
sketch2.addConstraint(Sketcher.Constraint("DistanceX", -1, 1, 14, 3, 9.186747))
sketch2.addConstraint(Sketcher.Constraint("DistanceX", -1, 1, 18, 3, 34.186747))
sketch2.addConstraint(Sketcher.Constraint("DistanceX", -1, 1, 22, 3, 59.186747))
sketch2.addConstraint(Sketcher.Constraint("DistanceX", -1, 1, 26, 3, 84.186747))
sketch2.addConstraint(Sketcher.Constraint("DistanceX", -1, 1, 30, 3, 109.186747))
sketch2.addConstraint(Sketcher.Constraint("DistanceX", -1, 1, 34, 3, 134.186747))
pocket1 = body.newObject("PartDesign::Pocket", "Pocket")
pocket1.Profile = sketch2
pocket1.Length = 5
doc.recompute()

fillet = body.newObject("PartDesign::Fillet", "Fillet")
fillet.Base = (pocket1, edges_at(pocket1, [
    (-62.813, -22.5, 2.5),
    (-68.813, -22.5, 2.5),
    (-37.813, -22.5, 2.5),
    (-43.813, -22.5, 2.5),
    (-12.813, -22.5, 2.5),
    (-18.813, -22.5, 2.5),
    (12.187, -22.5, 2.5),
    (6.187, -22.5, 2.5),
    (37.187, -22.5, 2.5),
    (31.187, -22.5, 2.5),
    (62.187, -22.5, 2.5),
    (56.187, -22.5, 2.5),
    (87.187, -22.5, 2.5),
    (81.187, -22.5, 2.5),
    (112.187, -22.5, 2.5),
    (106.187, -22.5, 2.5),
    (137.187, -22.5, 2.5),
    (131.187, -22.5, 2.5),
    (131.187, 22.5, 2.5),
    (137.187, 22.5, 2.5),
    (106.187, 22.5, 2.5),
    (112.187, 22.5, 2.5),
    (81.187, 22.5, 2.5),
    (87.187, 22.5, 2.5),
    (56.187, 22.5, 2.5),
    (62.187, 22.5, 2.5),
    (31.187, 22.5, 2.5),
    (37.187, 22.5, 2.5),
    (6.187, 22.5, 2.5),
    (12.187, 22.5, 2.5),
    (-18.813, 22.5, 2.5),
    (-12.813, 22.5, 2.5),
    (-43.813, 22.5, 2.5),
    (-37.813, 22.5, 2.5),
    (-68.813, 22.5, 2.5),
    (-62.813, 22.5, 2.5),
]))
fillet.Radius = 2
doc.recompute()

fillet2 = body.newObject("PartDesign::Fillet", "Fillet001")
fillet2.Base = (fillet, edges_at(fillet, [
    (-85.813, 22.5, 2.5),
    (154.187, 22.5, 2.5),
    (154.187, -22.5, 2.5),
    (-85.813, -22.5, 2.5),
]))
fillet2.Radius = 5

doc.recompute()
